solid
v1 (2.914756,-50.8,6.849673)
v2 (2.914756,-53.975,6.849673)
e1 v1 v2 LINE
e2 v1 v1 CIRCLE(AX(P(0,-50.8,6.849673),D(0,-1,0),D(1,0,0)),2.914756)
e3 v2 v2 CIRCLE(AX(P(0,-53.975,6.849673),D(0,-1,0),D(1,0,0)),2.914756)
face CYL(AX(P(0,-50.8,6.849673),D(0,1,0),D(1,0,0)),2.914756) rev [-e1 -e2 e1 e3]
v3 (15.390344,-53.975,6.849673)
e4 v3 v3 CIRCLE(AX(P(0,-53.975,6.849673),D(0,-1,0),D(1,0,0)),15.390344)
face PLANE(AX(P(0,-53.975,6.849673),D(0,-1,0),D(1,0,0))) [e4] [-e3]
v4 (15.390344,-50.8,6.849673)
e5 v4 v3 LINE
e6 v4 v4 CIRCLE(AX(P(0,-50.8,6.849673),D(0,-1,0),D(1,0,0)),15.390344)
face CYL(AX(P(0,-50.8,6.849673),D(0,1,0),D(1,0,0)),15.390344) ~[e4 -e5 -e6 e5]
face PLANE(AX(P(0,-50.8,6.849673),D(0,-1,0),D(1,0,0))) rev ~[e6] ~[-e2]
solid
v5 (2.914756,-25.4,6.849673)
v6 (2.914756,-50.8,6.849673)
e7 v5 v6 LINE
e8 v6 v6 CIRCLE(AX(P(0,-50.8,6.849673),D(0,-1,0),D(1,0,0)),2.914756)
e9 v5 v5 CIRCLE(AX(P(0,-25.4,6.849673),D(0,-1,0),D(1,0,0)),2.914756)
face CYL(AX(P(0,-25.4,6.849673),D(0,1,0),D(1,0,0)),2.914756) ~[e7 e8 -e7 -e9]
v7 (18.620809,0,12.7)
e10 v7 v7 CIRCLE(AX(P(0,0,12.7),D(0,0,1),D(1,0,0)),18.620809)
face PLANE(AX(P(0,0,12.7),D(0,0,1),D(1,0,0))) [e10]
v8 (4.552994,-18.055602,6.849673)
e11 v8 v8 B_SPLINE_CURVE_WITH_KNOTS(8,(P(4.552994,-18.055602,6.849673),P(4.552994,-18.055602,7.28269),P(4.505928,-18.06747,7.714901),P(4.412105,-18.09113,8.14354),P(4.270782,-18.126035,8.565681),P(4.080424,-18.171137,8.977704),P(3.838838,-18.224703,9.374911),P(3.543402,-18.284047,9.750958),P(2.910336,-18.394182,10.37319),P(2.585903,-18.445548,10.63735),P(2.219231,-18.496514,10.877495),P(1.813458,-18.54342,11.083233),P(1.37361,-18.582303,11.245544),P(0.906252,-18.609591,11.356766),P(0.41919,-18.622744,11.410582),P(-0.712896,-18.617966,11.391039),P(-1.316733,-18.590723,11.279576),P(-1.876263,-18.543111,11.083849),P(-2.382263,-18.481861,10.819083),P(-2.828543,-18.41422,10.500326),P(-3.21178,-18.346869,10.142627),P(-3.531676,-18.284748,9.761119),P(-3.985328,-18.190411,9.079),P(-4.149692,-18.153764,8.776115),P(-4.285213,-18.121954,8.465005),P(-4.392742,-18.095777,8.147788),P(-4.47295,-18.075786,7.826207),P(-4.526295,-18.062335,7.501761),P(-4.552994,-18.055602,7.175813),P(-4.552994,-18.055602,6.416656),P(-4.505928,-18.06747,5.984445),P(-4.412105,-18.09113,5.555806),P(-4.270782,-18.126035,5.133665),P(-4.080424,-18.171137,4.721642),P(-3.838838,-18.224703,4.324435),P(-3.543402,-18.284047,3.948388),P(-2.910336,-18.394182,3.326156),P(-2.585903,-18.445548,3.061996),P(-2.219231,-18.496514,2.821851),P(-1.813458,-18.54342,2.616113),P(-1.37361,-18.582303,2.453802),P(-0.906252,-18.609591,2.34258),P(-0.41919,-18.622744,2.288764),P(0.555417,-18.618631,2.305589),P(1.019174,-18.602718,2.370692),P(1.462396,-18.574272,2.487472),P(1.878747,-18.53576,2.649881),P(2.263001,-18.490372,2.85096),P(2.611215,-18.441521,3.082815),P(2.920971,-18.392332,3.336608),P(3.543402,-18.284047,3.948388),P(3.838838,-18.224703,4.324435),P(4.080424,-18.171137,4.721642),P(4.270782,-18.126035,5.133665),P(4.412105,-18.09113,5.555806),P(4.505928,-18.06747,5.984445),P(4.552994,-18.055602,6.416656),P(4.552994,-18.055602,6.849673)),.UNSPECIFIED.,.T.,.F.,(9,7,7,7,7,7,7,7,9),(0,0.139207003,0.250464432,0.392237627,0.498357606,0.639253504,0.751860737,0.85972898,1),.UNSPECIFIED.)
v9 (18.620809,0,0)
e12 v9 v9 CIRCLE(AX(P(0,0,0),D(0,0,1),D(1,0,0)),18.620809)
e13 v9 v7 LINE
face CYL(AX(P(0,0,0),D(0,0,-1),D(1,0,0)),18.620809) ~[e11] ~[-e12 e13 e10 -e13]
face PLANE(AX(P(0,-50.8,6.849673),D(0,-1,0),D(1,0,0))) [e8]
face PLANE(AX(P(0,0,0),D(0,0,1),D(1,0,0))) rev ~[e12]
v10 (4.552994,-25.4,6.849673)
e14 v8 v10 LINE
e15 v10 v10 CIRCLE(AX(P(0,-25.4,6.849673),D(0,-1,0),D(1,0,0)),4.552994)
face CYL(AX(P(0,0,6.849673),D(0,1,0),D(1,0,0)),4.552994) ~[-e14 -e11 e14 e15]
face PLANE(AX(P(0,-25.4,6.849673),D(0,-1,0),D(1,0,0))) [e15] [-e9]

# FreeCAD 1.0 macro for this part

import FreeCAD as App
import Part
import Sketcher

V = App.Vector
Q = App.Units.Quantity

doc = App.newDocument("Part")
params = doc.addObject("Spreadsheet::Sheet", "Params")
for row, (alias, value) in enumerate([
    ("pad1_length", "0.5 in"),
    ("pad2_length", "1 in"),
    ("pad3_length", "1 in"),
    ("pad4_length", "0.125 in"),
], start=1):
    params.set(f"A{row}", alias)
    params.set(f"B{row}", "=" + value)
    params.setAlias(f"B{row}", alias)

body = doc.addObject("PartDesign::Body", "Body")

# Sketch on XY plane
sketch1 = doc.addObject("Sketcher::SketchObject", "Sketch")
body.addObject(sketch1)
sketch1.AttachmentSupport = (doc.XY_Plane, [""])
sketch1.MapMode = "FlatFace"
sketch1.addGeometry(Part.Circle(V(0, 0, 0), V(0, 0, 1), 19), False)
sketch1.addConstraint([
    Sketcher.Constraint("Coincident", 0, 3, -1, 1),
    Sketcher.Constraint("Diameter", 0, Q("37.241618 mm")),
])
pad1 = doc.addObject("PartDesign::Pad", "Pad")
body.addObject(pad1)
pad1.Profile = sketch1
pad1.setExpression("Length", "Params.pad1_length")

# Sketch on XZ plane
sketch2 = doc.addObject("Sketcher::SketchObject", "Sketch001")
body.addObject(sketch2)
sketch2.AttachmentSupport = (doc.XZ_Plane, [""])
sketch2.MapMode = "FlatFace"
sketch2.addGeometry(Part.Circle(V(0, 6.8, 0), V(0, 0, 1), 4.6), False)
sketch2.addConstraint([
    Sketcher.Constraint("PointOnObject", 0, 3, -2),
    Sketcher.Constraint("Diameter", 0, Q("9.105988 mm")),
    Sketcher.Constraint("DistanceY", -1, 1, 0, 3, Q("6.849673 mm")),
])
pad2 = doc.addObject("PartDesign::Pad", "Pad001")
body.addObject(pad2)
pad2.Profile = sketch2
pad2.setExpression("Length", "Params.pad2_length")

# Sketch on XZ plane
sketch3 = doc.addObject("Sketcher::SketchObject", "Sketch002")
body.addObject(sketch3)
sketch3.AttachmentSupport = (doc.XZ_Plane, [""])
sketch3.MapMode = "FlatFace"
sketch3.AttachmentOffset = App.Placement(V(0, 0, 1 * 25.4), App.Rotation())
sketch3.addGeometry(Part.Circle(V(0, 6.8, 0), V(0, 0, 1), 2.9), False)
sketch3.addConstraint([
    Sketcher.Constraint("PointOnObject", 0, 3, -2),
    Sketcher.Constraint("Diameter", 0, Q("5.829512 mm")),
    Sketcher.Constraint("DistanceY", -1, 1, 0, 3, Q("6.849673 mm")),
])
pad3 = doc.addObject("PartDesign::Pad", "Pad002")
body.addObject(pad3)
pad3.Profile = sketch3
pad3.setExpression("Length", "Params.pad3_length")
body2 = doc.addObject("PartDesign::Body", "Body001")

# Sketch on XZ plane
sketch4 = doc.addObject("Sketcher::SketchObject", "Sketch003")
body2.addObject(sketch4)
sketch4.AttachmentSupport = (doc.getObject("XZ_Plane001"), [""])
sketch4.MapMode = "FlatFace"
sketch4.AttachmentOffset = App.Placement(V(0, 0, 2 * 25.4), App.Rotation())
sketch4.addGeometry([
    Part.Circle(V(0, 6.8, 0), V(0, 0, 1), 15.4),
    Part.Circle(V(0, 6.8, 0), V(0, 0, 1), 2.9),
], False)
sketch4.addConstraint([
    Sketcher.Constraint("Coincident", 1, 3, 0, 3),
    Sketcher.Constraint("PointOnObject", 0, 3, -2),
    Sketcher.Constraint("Diameter", 0, Q("30.780688 mm")),
    Sketcher.Constraint("Diameter", 1, Q("5.829512 mm")),
    Sketcher.Constraint("DistanceY", -1, 1, 0, 3, Q("6.849673 mm")),
])
pad4 = doc.addObject("PartDesign::Pad", "Pad003")
body2.addObject(pad4)
pad4.Profile = sketch4
pad4.setExpression("Length", "Params.pad4_length")

doc.recompute()
